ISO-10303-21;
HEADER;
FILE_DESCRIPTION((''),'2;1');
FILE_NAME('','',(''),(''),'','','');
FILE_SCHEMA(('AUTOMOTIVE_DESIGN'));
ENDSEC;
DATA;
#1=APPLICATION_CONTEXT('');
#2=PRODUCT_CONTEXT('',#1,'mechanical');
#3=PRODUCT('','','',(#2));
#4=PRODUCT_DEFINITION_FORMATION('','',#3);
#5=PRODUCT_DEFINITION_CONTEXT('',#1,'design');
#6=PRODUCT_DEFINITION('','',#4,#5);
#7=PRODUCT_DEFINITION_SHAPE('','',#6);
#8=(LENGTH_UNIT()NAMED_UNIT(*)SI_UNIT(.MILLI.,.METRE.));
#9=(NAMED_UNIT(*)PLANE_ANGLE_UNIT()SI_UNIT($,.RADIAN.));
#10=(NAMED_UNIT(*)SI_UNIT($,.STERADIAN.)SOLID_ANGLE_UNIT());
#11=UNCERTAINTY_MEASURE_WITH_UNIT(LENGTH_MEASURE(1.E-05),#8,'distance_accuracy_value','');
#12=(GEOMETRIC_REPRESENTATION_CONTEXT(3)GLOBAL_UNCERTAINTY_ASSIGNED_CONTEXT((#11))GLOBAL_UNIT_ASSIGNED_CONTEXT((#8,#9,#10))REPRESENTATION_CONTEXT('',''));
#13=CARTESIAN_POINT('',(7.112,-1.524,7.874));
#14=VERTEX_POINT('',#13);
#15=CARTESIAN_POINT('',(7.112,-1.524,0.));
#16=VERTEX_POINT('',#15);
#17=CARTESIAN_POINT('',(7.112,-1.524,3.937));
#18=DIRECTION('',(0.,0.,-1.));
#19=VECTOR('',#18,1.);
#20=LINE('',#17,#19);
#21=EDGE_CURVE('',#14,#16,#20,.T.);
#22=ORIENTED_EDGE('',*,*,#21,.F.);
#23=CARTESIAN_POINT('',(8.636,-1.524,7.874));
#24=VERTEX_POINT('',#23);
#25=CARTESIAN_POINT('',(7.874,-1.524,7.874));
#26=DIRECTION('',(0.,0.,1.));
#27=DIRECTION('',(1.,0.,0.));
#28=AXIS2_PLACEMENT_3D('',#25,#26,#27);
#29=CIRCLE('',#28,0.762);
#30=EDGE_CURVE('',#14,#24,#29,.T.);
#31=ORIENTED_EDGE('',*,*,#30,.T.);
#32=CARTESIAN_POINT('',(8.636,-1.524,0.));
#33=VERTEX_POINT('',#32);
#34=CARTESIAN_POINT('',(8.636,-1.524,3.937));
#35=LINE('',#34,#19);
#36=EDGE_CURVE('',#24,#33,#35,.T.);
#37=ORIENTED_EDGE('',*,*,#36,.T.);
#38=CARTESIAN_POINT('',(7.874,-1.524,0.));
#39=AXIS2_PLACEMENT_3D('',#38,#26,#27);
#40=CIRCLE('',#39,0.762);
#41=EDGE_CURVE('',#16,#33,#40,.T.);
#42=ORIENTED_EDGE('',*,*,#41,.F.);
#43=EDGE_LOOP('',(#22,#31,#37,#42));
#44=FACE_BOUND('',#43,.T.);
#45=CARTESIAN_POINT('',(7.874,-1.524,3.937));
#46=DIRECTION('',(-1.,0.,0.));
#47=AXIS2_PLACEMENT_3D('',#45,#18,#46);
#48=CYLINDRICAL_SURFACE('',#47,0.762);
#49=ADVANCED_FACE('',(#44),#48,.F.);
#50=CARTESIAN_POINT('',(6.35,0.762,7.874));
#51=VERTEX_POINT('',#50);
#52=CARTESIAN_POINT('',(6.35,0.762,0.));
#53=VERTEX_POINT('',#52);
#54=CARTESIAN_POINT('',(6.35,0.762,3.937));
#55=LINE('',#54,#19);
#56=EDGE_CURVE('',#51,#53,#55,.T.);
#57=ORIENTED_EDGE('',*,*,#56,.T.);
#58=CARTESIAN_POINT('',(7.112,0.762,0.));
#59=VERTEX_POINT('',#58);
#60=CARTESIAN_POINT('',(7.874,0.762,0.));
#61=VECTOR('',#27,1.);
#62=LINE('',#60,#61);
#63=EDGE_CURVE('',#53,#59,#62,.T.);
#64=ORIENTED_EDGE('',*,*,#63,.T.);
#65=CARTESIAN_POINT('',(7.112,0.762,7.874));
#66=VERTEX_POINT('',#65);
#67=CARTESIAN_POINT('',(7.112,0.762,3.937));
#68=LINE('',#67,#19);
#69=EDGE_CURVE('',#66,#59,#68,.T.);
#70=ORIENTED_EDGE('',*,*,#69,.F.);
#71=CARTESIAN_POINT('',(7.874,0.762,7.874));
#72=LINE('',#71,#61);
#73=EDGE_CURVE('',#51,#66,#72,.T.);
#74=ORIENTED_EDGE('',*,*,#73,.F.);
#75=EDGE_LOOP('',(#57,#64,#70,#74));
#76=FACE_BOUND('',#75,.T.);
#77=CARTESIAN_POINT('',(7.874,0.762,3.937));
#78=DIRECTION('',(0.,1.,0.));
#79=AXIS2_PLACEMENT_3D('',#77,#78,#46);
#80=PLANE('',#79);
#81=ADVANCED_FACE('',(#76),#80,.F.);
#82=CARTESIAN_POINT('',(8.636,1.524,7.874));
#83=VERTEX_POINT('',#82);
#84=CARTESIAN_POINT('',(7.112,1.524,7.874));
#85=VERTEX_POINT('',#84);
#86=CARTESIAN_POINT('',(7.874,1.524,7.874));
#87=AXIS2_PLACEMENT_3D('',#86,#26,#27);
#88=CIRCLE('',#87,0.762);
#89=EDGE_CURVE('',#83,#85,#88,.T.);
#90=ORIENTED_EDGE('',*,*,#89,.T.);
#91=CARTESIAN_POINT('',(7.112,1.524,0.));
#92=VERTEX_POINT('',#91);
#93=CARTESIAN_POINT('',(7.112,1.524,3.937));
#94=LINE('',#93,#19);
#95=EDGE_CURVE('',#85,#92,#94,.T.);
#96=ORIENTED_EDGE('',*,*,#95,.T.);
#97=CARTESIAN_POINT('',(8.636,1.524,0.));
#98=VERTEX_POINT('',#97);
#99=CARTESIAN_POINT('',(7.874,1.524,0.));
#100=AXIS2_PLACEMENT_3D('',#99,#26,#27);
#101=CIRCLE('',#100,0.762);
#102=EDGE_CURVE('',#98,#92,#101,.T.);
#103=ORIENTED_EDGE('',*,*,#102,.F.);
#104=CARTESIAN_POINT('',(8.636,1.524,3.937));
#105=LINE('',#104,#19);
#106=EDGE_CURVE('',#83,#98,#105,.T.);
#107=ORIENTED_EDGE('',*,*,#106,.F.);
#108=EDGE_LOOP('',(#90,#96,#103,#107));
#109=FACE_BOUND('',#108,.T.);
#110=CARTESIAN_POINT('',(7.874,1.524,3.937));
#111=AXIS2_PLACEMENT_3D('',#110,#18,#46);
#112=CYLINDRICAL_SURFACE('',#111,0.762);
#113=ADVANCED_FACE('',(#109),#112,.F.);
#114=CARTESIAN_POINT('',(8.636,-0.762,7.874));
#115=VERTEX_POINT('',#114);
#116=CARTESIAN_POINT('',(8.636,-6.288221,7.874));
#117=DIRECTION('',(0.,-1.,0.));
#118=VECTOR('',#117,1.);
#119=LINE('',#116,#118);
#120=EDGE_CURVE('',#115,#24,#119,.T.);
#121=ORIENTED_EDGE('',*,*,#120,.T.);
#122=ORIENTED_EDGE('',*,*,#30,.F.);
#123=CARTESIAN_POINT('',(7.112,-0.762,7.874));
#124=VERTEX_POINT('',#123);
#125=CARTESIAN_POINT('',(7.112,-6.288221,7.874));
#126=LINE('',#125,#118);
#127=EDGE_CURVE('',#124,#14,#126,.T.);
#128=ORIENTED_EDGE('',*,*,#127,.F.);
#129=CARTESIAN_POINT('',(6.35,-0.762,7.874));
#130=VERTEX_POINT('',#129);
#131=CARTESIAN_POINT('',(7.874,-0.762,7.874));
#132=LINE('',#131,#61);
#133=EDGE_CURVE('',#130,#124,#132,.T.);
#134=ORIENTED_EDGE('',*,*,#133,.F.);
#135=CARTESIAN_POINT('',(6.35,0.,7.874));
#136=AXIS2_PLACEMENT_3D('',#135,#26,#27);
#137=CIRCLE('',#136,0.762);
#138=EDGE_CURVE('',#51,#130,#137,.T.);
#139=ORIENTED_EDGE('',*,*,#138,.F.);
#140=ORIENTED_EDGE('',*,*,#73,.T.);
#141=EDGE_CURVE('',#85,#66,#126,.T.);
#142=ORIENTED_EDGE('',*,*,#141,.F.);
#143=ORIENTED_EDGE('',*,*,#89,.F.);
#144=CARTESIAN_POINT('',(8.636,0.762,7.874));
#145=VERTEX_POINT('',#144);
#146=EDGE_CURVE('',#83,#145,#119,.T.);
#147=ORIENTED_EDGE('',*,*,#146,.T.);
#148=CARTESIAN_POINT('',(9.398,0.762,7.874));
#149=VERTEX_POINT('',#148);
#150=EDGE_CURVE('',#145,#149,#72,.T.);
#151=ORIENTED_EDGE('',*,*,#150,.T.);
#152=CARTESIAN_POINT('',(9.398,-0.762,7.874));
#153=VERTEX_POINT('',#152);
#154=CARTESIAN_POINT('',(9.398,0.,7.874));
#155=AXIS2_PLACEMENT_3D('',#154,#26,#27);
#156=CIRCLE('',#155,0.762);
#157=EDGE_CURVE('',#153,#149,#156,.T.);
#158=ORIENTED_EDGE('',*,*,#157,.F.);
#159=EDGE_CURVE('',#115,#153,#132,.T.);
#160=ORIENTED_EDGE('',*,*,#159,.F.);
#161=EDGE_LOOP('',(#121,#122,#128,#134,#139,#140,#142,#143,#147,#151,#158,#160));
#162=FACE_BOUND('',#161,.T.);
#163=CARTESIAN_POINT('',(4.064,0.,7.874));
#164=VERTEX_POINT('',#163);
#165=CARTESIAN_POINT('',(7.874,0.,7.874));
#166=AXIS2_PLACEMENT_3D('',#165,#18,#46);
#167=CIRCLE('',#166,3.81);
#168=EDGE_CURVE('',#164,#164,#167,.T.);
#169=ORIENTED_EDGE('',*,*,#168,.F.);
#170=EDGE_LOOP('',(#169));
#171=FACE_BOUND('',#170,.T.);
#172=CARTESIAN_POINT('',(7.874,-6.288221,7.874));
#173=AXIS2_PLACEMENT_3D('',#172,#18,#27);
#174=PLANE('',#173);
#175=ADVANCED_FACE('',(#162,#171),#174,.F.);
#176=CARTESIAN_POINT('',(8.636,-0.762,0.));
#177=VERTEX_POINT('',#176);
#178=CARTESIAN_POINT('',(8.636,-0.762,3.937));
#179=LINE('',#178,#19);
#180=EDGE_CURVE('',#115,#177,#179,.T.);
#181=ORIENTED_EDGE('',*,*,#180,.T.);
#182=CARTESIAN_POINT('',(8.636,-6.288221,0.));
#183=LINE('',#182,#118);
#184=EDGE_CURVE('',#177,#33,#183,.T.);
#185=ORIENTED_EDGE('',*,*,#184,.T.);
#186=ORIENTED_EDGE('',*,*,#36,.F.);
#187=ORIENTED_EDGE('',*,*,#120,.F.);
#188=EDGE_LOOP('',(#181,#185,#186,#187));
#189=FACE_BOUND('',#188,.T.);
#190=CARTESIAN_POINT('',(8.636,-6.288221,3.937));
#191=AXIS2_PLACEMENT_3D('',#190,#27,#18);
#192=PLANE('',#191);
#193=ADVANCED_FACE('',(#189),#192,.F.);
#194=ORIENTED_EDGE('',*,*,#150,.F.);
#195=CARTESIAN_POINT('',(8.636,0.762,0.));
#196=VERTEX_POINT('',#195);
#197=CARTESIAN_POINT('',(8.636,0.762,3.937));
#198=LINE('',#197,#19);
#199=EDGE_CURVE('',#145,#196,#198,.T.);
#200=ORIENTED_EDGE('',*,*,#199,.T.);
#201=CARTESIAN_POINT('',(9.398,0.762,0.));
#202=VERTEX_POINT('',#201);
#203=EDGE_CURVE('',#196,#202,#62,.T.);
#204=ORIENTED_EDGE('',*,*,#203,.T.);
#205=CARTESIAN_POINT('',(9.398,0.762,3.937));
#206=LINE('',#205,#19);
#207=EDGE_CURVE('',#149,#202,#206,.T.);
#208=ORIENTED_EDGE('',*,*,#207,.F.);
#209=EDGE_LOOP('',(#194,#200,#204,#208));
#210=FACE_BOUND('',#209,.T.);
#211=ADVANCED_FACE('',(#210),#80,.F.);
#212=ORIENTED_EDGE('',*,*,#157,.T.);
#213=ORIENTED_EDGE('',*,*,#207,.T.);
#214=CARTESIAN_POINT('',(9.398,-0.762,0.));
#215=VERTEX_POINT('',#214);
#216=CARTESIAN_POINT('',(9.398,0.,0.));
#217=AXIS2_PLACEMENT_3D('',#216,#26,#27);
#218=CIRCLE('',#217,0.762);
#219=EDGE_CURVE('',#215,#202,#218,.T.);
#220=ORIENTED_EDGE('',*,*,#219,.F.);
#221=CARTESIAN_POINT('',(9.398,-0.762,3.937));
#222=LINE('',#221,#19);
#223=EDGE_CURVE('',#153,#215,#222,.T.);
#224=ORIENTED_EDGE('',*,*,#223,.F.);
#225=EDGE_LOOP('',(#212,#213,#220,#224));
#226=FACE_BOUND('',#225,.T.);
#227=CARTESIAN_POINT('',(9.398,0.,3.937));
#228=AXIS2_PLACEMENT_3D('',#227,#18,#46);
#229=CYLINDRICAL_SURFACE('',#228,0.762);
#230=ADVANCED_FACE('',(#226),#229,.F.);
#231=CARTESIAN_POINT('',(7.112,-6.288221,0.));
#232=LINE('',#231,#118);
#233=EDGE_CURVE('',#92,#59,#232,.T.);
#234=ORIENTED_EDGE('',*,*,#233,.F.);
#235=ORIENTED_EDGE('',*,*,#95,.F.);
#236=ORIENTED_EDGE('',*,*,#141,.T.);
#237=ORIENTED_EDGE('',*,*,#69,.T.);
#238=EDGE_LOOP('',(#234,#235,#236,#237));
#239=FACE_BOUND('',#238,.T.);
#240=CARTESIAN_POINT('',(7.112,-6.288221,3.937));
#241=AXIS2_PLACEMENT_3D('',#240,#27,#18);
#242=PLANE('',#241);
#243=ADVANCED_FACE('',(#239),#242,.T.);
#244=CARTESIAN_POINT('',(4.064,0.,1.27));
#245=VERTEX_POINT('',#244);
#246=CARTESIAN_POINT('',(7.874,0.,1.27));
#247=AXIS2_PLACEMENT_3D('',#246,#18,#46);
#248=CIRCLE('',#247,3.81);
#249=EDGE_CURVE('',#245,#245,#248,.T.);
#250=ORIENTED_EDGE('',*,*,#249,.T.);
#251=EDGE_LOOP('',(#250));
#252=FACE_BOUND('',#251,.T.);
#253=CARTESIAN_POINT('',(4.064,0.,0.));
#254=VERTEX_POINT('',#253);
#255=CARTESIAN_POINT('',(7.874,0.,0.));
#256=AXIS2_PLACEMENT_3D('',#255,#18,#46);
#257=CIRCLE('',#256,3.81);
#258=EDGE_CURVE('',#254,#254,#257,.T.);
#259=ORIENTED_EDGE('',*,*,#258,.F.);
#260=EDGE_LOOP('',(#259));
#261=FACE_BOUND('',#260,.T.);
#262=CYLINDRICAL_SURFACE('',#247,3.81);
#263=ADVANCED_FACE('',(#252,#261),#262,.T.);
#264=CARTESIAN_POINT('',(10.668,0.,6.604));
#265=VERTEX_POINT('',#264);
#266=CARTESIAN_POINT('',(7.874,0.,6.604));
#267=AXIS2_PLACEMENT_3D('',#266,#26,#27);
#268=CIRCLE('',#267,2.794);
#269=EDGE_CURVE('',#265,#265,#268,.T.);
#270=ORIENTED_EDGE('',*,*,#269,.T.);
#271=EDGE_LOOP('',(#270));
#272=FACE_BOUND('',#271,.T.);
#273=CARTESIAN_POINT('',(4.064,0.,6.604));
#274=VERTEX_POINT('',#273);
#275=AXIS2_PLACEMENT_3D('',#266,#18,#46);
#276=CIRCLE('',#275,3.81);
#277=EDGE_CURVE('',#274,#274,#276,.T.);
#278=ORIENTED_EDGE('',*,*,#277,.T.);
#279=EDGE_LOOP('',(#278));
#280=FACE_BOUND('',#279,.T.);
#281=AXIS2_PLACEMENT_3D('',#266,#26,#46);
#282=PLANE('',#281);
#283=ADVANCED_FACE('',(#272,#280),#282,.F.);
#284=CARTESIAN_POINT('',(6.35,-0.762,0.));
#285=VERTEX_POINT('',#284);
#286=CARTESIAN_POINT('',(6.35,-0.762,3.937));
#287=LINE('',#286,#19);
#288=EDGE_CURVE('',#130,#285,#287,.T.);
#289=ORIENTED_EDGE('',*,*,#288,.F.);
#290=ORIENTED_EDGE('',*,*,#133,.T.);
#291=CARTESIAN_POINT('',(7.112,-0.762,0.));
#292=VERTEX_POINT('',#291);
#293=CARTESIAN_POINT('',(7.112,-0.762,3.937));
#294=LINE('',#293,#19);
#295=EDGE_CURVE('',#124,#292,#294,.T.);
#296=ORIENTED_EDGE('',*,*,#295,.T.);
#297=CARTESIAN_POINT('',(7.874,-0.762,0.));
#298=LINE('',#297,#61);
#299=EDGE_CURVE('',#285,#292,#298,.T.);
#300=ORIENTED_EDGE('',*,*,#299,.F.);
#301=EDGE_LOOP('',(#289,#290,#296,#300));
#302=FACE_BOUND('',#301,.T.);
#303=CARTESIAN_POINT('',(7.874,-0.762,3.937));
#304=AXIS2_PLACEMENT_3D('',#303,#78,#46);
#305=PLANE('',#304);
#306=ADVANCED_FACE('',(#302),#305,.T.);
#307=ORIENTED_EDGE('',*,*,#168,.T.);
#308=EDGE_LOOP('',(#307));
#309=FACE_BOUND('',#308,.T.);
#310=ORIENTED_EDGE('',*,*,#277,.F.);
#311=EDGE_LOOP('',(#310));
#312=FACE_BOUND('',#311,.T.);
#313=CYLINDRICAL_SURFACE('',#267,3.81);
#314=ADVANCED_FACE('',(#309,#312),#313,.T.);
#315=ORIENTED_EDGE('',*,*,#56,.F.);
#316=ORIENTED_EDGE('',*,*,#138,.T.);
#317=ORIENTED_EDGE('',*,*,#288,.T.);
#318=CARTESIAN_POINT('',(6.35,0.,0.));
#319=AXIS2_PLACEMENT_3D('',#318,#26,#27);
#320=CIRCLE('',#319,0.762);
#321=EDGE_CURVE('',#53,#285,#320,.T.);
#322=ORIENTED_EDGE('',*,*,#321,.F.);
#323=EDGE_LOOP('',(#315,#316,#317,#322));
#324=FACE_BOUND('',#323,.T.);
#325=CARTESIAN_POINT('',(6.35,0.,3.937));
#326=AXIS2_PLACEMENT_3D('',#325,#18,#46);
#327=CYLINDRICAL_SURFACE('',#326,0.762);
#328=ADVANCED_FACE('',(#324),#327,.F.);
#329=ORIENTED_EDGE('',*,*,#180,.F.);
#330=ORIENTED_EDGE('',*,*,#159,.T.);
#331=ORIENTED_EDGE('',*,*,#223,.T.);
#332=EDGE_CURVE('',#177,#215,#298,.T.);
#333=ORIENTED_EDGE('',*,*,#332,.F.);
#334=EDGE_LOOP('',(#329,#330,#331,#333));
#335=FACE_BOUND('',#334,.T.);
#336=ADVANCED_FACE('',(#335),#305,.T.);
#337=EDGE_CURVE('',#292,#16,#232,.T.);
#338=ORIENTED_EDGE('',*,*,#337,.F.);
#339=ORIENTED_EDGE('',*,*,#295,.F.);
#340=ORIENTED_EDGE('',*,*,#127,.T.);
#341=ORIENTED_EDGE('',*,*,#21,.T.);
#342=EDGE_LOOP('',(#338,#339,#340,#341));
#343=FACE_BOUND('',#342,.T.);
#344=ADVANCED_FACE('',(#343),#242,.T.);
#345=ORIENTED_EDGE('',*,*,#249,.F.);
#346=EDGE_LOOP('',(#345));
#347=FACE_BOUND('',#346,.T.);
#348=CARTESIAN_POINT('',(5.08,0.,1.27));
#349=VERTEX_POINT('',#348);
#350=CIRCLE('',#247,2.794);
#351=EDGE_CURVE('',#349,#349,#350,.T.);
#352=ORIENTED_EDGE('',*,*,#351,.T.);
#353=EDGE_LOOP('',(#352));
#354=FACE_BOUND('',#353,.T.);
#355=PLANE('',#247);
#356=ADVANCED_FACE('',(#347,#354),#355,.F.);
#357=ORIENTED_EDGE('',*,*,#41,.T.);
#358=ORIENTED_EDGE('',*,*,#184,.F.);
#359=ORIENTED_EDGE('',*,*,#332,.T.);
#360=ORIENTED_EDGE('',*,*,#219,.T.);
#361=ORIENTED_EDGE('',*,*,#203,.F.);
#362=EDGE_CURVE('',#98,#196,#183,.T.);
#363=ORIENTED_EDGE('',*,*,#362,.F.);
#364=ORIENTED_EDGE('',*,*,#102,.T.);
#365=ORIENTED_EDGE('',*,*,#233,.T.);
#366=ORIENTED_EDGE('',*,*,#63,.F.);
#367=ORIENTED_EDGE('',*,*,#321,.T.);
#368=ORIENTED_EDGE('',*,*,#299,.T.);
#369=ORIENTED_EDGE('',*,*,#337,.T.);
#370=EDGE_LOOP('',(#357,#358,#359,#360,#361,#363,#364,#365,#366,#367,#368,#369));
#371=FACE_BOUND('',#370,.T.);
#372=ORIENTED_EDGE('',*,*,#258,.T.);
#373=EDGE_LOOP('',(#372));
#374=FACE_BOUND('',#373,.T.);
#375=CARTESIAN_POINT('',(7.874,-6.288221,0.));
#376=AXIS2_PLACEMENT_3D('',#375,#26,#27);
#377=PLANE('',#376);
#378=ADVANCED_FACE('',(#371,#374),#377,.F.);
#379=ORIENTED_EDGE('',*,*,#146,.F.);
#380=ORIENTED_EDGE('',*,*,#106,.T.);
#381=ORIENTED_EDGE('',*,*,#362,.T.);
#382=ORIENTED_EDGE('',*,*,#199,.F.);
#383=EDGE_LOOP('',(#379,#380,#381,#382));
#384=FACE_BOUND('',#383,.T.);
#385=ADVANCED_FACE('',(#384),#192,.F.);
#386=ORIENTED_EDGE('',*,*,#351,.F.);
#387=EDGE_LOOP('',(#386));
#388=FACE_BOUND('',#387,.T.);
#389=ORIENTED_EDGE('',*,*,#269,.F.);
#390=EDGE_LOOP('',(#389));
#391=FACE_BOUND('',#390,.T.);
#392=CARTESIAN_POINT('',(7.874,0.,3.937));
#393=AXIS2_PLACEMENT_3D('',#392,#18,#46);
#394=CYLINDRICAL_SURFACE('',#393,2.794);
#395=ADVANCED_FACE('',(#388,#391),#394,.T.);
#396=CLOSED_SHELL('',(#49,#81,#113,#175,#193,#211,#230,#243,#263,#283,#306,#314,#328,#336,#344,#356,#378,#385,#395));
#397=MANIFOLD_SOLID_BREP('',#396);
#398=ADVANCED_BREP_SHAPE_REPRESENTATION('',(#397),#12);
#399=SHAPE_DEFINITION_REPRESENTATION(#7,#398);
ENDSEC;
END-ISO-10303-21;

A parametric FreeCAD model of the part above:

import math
import FreeCAD as App
import Part
import Sketcher

V = App.Vector
Q = App.Units.Quantity

doc = App.newDocument("Part")
body = doc.addObject("PartDesign::Body", "Body")

# Sketch on XY plane
sketch1 = doc.addObject("Sketcher::SketchObject", "Sketch")
body.addObject(sketch1)
sketch1.AttachmentSupport = (doc.XY_Plane, [""])
sketch1.MapMode = "FlatFace"
sketch1.addGeometry([
    Part.Circle(V(7.9, 0, 0), V(0, 0, 1), 2.8),  # 0
    Part.ArcOfCircle(Part.Circle(V(6.3, 0, 0), V(0, 0, 1), 0.8), math.radians(90), math.radians(270)),  # 1
    Part.LineSegment(V(6.3, 0.8, 0), V(7.1, 0.8, 0)),  # 2
    Part.LineSegment(V(7.1, 0.8, 0), V(7.1, 1.5, 0)),  # 3
    Part.ArcOfCircle(Part.Circle(V(7.9, 1.5, 0), V(0, 0, 1), 0.8), math.radians(0), math.radians(180)),  # 4
    Part.LineSegment(V(8.6, 1.5, 0), V(8.6, 0.8, 0)),  # 5
    Part.LineSegment(V(8.6, 0.8, 0), V(9.4, 0.8, 0)),  # 6
    Part.ArcOfCircle(Part.Circle(V(9.4, 0, 0), V(0, 0, 1), 0.8), math.radians(-90), math.radians(90)),  # 7
    Part.LineSegment(V(9.4, -0.8, 0), V(8.6, -0.8, 0)),  # 8
    Part.LineSegment(V(8.6, -0.8, 0), V(8.6, -1.5, 0)),  # 9
    Part.ArcOfCircle(Part.Circle(V(7.9, -1.5, 0), V(0, 0, 1), 0.8), math.radians(180), math.radians(360)),  # 10
    Part.LineSegment(V(7.1, -1.5, 0), V(7.1, -0.8, 0)),  # 11
    Part.LineSegment(V(7.1, -0.8, 0), V(6.3, -0.8, 0)),  # 12
], False)
sketch1.addConstraint([
    Sketcher.Constraint("Tangent", 1, 1, 2, 1),
    Sketcher.Constraint("Coincident", 2, 2, 3, 1),
    Sketcher.Constraint("Tangent", 3, 2, 4, 2),
    Sketcher.Constraint("Tangent", 4, 1, 5, 1),
    Sketcher.Constraint("Coincident", 5, 2, 6, 1),
    Sketcher.Constraint("Tangent", 6, 2, 7, 2),
    Sketcher.Constraint("Tangent", 7, 1, 8, 1),
    Sketcher.Constraint("Coincident", 8, 2, 9, 1),
    Sketcher.Constraint("Tangent", 9, 2, 10, 2),
    Sketcher.Constraint("Tangent", 10, 1, 11, 1),
    Sketcher.Constraint("Coincident", 11, 2, 12, 1),
    Sketcher.Constraint("Tangent", 12, 2, 1, 2),
    Sketcher.Constraint("Horizontal", 2),
    Sketcher.Constraint("Vertical", 3),
    Sketcher.Constraint("Vertical", 5),
    Sketcher.Constraint("Horizontal", 6),
    Sketcher.Constraint("Horizontal", 8),
    Sketcher.Constraint("Vertical", 9),
    Sketcher.Constraint("Vertical", 11),
    Sketcher.Constraint("Horizontal", 12),
    Sketcher.Constraint("Equal", 1, 4),
    Sketcher.Constraint("Equal", 4, 7),
    Sketcher.Constraint("Equal", 7, 10),
    Sketcher.Constraint("Symmetric", 4, 3, 10, 3, -1),
    Sketcher.Constraint("PointOnObject", 0, 3, -1),
    Sketcher.Constraint("PointOnObject", 1, 3, -1),
    Sketcher.Constraint("PointOnObject", 7, 3, -1),
    Sketcher.Constraint("Vertical", 0, 3, 4, 3),
    Sketcher.Constraint("Equal", 2, 6),
    Sketcher.Constraint("Equal", 12, 3),
    Sketcher.Constraint("Diameter", 0, Q("0.22 in")),
    Sketcher.Constraint("Radius", 1, Q("0.03 in")),
    Sketcher.Constraint("DistanceX", 2, 1, 2, 2, Q("0.03 in")),
    Sketcher.Constraint("DistanceX", -1, 1, 0, 3, Q("0.31 in")),
])
pad1 = doc.addObject("PartDesign::Pad", "Pad")
body.addObject(pad1)
pad1.Profile = sketch1
pad1.Length = Q("0.155 in")

# Sketch on XY plane
sketch2 = doc.addObject("Sketcher::SketchObject", "Sketch001")
body.addObject(sketch2)
sketch2.AttachmentSupport = (doc.XY_Plane, [""])
sketch2.MapMode = "FlatFace"
sketch2.addGeometry([
    Part.Circle(V(7.9, 0, 0), V(0, 0, 1), 3.8),
    Part.Circle(V(7.9, 0, 0), V(0, 0, 1), 2.8),
], False)
sketch2.addConstraint([
    Sketcher.Constraint("Coincident", 1, 3, 0, 3),
    Sketcher.Constraint("PointOnObject", 0, 3, -1),
    Sketcher.Constraint("Diameter", 0, Q("0.3 in")),
    Sketcher.Constraint("Diameter", 1, Q("0.22 in")),
    Sketcher.Constraint("DistanceX", -1, 1, 0, 3, Q("0.31 in")),
])
pad2 = doc.addObject("PartDesign::Pad", "Pad001")
body.addObject(pad2)
pad2.Profile = sketch2
pad2.Length = Q("0.05 in")
doc.recompute()

datumplane = doc.addObject("PartDesign::Plane", "DatumPlane")
body.addObject(datumplane)
datumplane.AttachmentSupport = (doc.XY_Plane, [""])
datumplane.MapMode = "FlatFace"
datumplane.AttachmentOffset = App.Placement(V(0, 0, 0.155 * 25.4), App.Rotation())
mirrored = doc.addObject("PartDesign::Mirrored", "Mirrored")
body.addObject(mirrored)
mirrored.Originals = [pad1, pad2]
mirrored.MirrorPlane = (datumplane, [""])
body.Tip = mirrored

doc.recompute()
